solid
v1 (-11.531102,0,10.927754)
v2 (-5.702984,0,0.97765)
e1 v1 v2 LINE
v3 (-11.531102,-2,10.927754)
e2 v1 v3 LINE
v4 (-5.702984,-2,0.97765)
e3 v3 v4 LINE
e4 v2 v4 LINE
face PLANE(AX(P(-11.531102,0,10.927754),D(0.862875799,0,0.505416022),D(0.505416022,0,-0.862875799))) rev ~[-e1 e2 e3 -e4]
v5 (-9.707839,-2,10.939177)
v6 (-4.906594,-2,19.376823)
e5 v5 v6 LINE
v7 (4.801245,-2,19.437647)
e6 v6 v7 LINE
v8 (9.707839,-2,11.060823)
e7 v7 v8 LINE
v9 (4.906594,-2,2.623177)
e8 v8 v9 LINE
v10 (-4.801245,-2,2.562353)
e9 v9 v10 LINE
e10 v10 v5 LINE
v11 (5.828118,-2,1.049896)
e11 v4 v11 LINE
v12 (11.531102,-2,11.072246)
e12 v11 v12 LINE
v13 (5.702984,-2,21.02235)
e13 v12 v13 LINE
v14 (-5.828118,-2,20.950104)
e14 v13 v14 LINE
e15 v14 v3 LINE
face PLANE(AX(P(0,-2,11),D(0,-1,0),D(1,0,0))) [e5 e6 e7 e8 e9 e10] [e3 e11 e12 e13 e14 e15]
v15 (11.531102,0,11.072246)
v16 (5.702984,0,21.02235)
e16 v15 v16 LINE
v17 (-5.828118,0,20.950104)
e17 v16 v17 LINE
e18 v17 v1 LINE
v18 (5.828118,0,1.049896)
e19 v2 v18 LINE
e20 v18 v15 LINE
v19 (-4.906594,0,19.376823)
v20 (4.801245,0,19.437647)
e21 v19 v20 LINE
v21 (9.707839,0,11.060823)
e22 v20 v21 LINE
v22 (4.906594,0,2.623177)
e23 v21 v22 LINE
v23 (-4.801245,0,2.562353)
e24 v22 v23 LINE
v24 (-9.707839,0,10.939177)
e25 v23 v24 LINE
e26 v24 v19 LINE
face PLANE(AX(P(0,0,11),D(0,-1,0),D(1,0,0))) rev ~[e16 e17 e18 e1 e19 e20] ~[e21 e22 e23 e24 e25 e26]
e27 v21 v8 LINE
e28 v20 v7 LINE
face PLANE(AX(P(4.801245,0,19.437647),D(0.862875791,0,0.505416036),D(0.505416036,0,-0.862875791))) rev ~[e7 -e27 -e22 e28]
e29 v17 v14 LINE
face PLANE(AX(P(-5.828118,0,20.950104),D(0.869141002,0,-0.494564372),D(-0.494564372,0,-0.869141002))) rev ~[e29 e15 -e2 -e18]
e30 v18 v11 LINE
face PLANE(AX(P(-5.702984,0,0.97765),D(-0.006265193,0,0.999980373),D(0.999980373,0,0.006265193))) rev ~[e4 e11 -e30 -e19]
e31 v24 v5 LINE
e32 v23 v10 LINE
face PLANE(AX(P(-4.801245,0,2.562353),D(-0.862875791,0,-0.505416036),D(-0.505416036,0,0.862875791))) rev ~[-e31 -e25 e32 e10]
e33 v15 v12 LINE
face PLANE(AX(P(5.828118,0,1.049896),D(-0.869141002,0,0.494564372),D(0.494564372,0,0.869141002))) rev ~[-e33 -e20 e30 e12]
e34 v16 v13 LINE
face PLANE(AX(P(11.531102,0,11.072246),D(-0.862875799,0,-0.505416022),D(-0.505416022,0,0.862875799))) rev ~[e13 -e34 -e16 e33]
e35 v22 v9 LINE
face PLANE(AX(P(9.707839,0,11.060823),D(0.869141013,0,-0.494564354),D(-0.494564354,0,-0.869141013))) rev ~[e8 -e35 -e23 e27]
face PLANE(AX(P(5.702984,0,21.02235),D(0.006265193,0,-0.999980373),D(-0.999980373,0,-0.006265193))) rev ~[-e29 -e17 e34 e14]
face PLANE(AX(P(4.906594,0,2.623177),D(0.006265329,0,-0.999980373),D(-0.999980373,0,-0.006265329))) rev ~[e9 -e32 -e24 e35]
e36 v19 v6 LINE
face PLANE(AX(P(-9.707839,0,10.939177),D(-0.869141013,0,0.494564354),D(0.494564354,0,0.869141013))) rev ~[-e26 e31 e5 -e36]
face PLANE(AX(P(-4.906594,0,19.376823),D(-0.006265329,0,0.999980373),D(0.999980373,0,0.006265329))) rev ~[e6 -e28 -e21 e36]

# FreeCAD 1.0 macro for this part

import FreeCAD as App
import Part
import Sketcher

V = App.Vector
Q = App.Units.Quantity


def add_polygon(sketch, points):
    """Adds a closed chain of lines whose ends are joined by coincident constraints."""
    first, n = sketch.GeometryCount, len(points)
    for a, b in zip(points, points[1:] + points[:1]):
        sketch.addGeometry(Part.LineSegment(App.Vector(*a, 0), App.Vector(*b, 0)), False)
    for i in range(n):
        sketch.addConstraint(Sketcher.Constraint("Coincident", first + i, 2, first + (i + 1) % n, 1))

doc = App.newDocument("Part")
params = doc.addObject("Spreadsheet::Sheet", "Params")
for row, (alias, value) in enumerate([
    ("pad1_length", "2 mm"),
], start=1):
    params.set(f"A{row}", alias)
    params.set(f"B{row}", "=" + value)
    params.setAlias(f"B{row}", alias)

body = doc.addObject("PartDesign::Body", "Body")

sketch1 = body.newObject("Sketcher::SketchObject", "Sketch")
sketch1.AttachmentSupport = (doc.getObject("XZ_Plane"), [""])
sketch1.MapMode = "FlatFace"
add_polygon(sketch1, [(11.531102, 0.072246), (5.702984, 10.02235), (-5.828118, 9.950104), (-11.531102, -0.072246), (-5.702984, -10.02235), (5.828118, -9.950104)])
add_polygon(sketch1, [(-9.707839, -0.060823), (-4.906594, 8.376823), (4.801245, 8.437647), (9.707839, 0.060823), (4.906594, -8.376823), (-4.801245, -8.437647)])
sketch1.addConstraint(Sketcher.Constraint("Symmetric", 0, 2, 3, 2, -1, 1))
sketch1.addConstraint(Sketcher.Constraint("Symmetric", 1, 2, 4, 2, -1, 1))
sketch1.addConstraint(Sketcher.Constraint("Symmetric", 2, 2, 5, 2, -1, 1))
sketch1.addConstraint(Sketcher.Constraint("Symmetric", 6, 2, 9, 2, -1, 1))
sketch1.addConstraint(Sketcher.Constraint("Symmetric", 7, 2, 10, 2, -1, 1))
sketch1.addConstraint(Sketcher.Constraint("Symmetric", 8, 2, 11, 2, -1, 1))
sketch1.addConstraint(Sketcher.Constraint("Parallel", 5, 6))
sketch1.addConstraint(Sketcher.Constraint("Parallel", 4, 7))
sketch1.addConstraint(Sketcher.Constraint("Parallel", 3, 8))
sketch1.addConstraint(Sketcher.Constraint("Equal", 0, 1))
sketch1.addConstraint(Sketcher.Constraint("Equal", 1, 2))
sketch1.addConstraint(Sketcher.Constraint("Equal", 6, 7))
sketch1.addConstraint(Sketcher.Constraint("Equal", 7, 8))
sketch1.addConstraint(Sketcher.Constraint("DistanceY", 8, 2, 6, 2, Q("8.316 mm")))
sketch1.addConstraint(Sketcher.Constraint("DistanceY", 3, 2, 0, 2, Q("20.0447 mm")))
sketch1.addConstraint(Sketcher.Constraint("DistanceY", 5, 2, 7, 2, Q("8.365401 mm")))
sketch1.addConstraint(Sketcher.Constraint("Distance", 0, Q("11.531328 mm")))
sketch1.addConstraint(Sketcher.Constraint("Distance", 6, Q("9.708029 mm")))
pad1 = body.newObject("PartDesign::Pad", "Pad")
pad1.Profile = sketch1
pad1.setExpression("Length", "Params.pad1_length")
body2 = doc.addObject("PartDesign::Body", "Body001")
doc.recompute()

body.Placement = App.Placement(V(0, 0, 11), App.Rotation(V(0, 0, 1), 0))
boolean = body2.newObject("PartDesign::Boolean", "Boolean")
boolean.Type = "Fuse"
boolean.addObjects([body])

doc.recompute()
